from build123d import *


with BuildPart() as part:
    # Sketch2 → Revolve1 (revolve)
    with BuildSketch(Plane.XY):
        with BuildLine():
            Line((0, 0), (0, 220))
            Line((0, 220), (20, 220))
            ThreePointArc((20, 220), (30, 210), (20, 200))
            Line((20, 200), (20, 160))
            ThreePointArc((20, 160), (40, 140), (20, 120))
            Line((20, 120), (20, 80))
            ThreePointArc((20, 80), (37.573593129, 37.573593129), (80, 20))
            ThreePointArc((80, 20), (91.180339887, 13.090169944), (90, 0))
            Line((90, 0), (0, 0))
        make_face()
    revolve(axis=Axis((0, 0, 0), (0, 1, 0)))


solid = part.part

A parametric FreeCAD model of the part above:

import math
import FreeCAD as App
import Part
import Sketcher

V = App.Vector

doc = App.newDocument("Part")
params = doc.addObject("Spreadsheet::Sheet", "Params")
for row, (alias, value) in enumerate([
    ("sketch1_radius", "60 mm"),
    ("sketch1_radius2", "20 mm"),
    ("sketch1_radius3", "10 mm"),
    ("sketch1_radius4", "12.5 mm"),
    ("sketch1_width", "90 mm"),
    ("revolution_angle", "360 deg"),
], start=1):
    params.set(f"A{row}", alias)
    params.set(f"B{row}", "=" + value)
    params.setAlias(f"B{row}", alias)

body = doc.addObject("PartDesign::Body", "Body")

sketch1 = doc.addObject("Sketcher::SketchObject", "Sketch")
body.addObject(sketch1)
sketch1.AttachmentSupport = (doc.XY_Plane, [""])
sketch1.MapMode = "FlatFace"
sketch1.addGeometry([
    Part.LineSegment(V(0, 220, 0), V(0, 0, 0)),
    Part.LineSegment(V(0, 0, 0), V(90, 0, 0)),
    Part.ArcOfCircle(Part.Circle(V(80, 8, 0), V(0, 0, 1), 12), math.radians(-37), math.radians(90)),
    Part.ArcOfCircle(Part.Circle(V(80, 80, 0), V(0, 0, 1), 60), math.radians(-180), math.radians(-90)),
    Part.LineSegment(V(20, 80, 0), V(20, 120, 0)),
    Part.ArcOfCircle(Part.Circle(V(20, 140, 0), V(0, 0, 1), 20), math.radians(-90), math.radians(90)),
    Part.LineSegment(V(20, 160, 0), V(20, 200, 0)),
    Part.ArcOfCircle(Part.Circle(V(20, 210, 0), V(0, 0, 1), 10), math.radians(-90), math.radians(90)),
    Part.LineSegment(V(20, 220, 0), V(0, 220, 0)),
], False)
sketch1.addConstraint([
    Sketcher.Constraint("Coincident", 0, 2, 1, 1),
    Sketcher.Constraint("Coincident", 1, 2, 2, 1),
    Sketcher.Constraint("Tangent", 2, 2, 3, 2),
    Sketcher.Constraint("Tangent", 3, 1, 4, 1),
    Sketcher.Constraint("Coincident", 4, 2, 5, 1),
    Sketcher.Constraint("Coincident", 5, 2, 6, 1),
    Sketcher.Constraint("Coincident", 6, 2, 7, 1),
    Sketcher.Constraint("Tangent", 7, 2, 8, 1),
    Sketcher.Constraint("Coincident", 8, 2, 0, 1),
    Sketcher.Constraint("Vertical", 0),
    Sketcher.Constraint("Horizontal", 1),
    Sketcher.Constraint("Vertical", 4),
    Sketcher.Constraint("Vertical", 6),
    Sketcher.Constraint("Horizontal", 8),
    Sketcher.Constraint("Coincident", 0, 2, -1, 1),
    Sketcher.Constraint("Vertical", 2, 3, 3, 3),
    Sketcher.Constraint("Vertical", 5, 3, 7, 3),
    Sketcher.Constraint("Vertical", 7, 3, 3, 1),
    Sketcher.Constraint("Vertical", 4, 2, 5, 2),
    Sketcher.Constraint("Equal", 4, 6),
    Sketcher.Constraint("Radius", 3, 60.0),
    Sketcher.Constraint("Radius", 5, 20.0),
    Sketcher.Constraint("Radius", 7, 10.0),
    Sketcher.Constraint("Radius", 2, 12.5),
    Sketcher.Constraint("DistanceX", 1, 1, 1, 2, 90.0),
    Sketcher.Constraint("DistanceX", 8, 2, 8, 1, 20.0),
    Sketcher.Constraint("DistanceY", 0, 2, 0, 1, 220.0),
])
sketch1.setExpression("Constraints[20]", "Params.sketch1_radius")
sketch1.setExpression("Constraints[21]", "Params.sketch1_radius2")
sketch1.setExpression("Constraints[22]", "Params.sketch1_radius3")
sketch1.setExpression("Constraints[23]", "Params.sketch1_radius4")
sketch1.setExpression("Constraints[24]", "Params.sketch1_width")
revolution = doc.addObject("PartDesign::Revolution", "Revolution")
body.addObject(revolution)
revolution.Profile = sketch1
revolution.ReferenceAxis = (sketch1, ["V_Axis"])
revolution.setExpression("Angle", "Params.revolution_angle")

doc.recompute()
